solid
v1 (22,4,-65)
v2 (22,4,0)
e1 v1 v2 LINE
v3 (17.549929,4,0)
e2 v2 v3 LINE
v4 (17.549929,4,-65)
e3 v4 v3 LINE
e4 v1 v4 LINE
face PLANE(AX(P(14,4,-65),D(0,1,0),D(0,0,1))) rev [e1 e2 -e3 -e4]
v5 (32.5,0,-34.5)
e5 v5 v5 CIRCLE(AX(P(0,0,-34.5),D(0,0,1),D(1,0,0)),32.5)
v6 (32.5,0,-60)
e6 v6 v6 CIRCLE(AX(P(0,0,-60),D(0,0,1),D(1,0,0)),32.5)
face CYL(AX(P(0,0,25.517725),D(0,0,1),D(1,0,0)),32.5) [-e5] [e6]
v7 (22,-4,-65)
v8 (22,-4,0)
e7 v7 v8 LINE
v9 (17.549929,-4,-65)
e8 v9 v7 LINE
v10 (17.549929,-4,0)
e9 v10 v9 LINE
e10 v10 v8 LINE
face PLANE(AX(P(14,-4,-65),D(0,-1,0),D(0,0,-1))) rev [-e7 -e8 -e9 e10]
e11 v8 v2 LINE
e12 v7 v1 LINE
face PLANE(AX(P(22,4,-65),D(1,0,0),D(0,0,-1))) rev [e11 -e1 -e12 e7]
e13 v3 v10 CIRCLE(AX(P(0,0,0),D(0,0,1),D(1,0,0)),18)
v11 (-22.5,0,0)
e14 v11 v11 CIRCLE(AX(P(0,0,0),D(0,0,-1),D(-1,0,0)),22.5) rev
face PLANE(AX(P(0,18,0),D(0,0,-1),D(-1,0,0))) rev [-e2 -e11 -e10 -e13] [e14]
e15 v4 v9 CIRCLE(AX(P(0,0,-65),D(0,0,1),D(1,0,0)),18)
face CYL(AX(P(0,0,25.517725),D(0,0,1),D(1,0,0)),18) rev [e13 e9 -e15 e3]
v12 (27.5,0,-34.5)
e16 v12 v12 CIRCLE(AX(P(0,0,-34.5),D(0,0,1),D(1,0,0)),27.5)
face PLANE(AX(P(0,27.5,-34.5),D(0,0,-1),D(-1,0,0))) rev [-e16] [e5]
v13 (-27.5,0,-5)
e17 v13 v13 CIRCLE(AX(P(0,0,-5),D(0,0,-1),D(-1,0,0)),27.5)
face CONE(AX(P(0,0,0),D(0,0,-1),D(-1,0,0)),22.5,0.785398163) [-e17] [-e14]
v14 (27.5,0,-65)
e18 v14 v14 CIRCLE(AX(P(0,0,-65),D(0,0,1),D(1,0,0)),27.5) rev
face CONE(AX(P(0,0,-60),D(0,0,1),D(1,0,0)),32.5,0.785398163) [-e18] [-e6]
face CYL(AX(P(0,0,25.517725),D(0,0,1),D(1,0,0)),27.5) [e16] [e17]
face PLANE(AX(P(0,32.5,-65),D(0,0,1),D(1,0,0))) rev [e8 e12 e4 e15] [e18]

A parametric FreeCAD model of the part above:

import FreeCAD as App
import Part
import Sketcher

V = App.Vector
Q = App.Units.Quantity


def edges_at(feature, points):
    """Names of the edges that pass closest to the given points."""
    edges = feature.Shape.Edges
    near = lambda p: min(range(len(edges)), key=lambda i: edges[i].distToShape(Part.Vertex(*p))[0])
    return sorted({f"Edge{near(p) + 1}" for p in points})

doc = App.newDocument("Part")
body = doc.addObject("PartDesign::Body", "Body")

# Sketch on YZ plane
sketch1 = doc.addObject("Sketcher::SketchObject", "Sketch")
body.addObject(sketch1)
sketch1.AttachmentSupport = (doc.YZ_Plane, [""])
sketch1.MapMode = "FlatFace"
sketch1.addGeometry(Part.LineSegment(V(27.5, 0, 0), V(18, 0, 0)), False)
sketch1.addGeometry(Part.LineSegment(V(18, 0, 0), V(18, -65, 0)), False)
sketch1.addGeometry(Part.LineSegment(V(18, -65, 0), V(32.5, -65, 0)), False)
sketch1.addGeometry(Part.LineSegment(V(32.5, -65, 0), V(32.5, -34.5, 0)), False)
sketch1.addGeometry(Part.LineSegment(V(32.5, -34.5, 0), V(27.5, -34.5, 0)), False)
sketch1.addGeometry(Part.LineSegment(V(27.5, -34.5, 0), V(27.5, 0, 0)), False)
sketch1.addConstraint(Sketcher.Constraint("Coincident", 0, 2, 1, 1))
sketch1.addConstraint(Sketcher.Constraint("Coincident", 1, 2, 2, 1))
sketch1.addConstraint(Sketcher.Constraint("Coincident", 2, 2, 3, 1))
sketch1.addConstraint(Sketcher.Constraint("Coincident", 3, 2, 4, 1))
sketch1.addConstraint(Sketcher.Constraint("Coincident", 4, 2, 5, 1))
sketch1.addConstraint(Sketcher.Constraint("Coincident", 5, 2, 0, 1))
sketch1.addConstraint(Sketcher.Constraint("Horizontal", 0))
sketch1.addConstraint(Sketcher.Constraint("Vertical", 1))
sketch1.addConstraint(Sketcher.Constraint("Horizontal", 2))
sketch1.addConstraint(Sketcher.Constraint("Vertical", 3))
sketch1.addConstraint(Sketcher.Constraint("Horizontal", 4))
sketch1.addConstraint(Sketcher.Constraint("Vertical", 5))
sketch1.addConstraint(Sketcher.Constraint("PointOnObject", 0, 2, -1))
sketch1.addConstraint(Sketcher.Constraint("DistanceX", 4, 2, 4, 1, Q("5 mm")))
sketch1.addConstraint(Sketcher.Constraint("DistanceY", 1, 2, 1, 1, Q("65 mm")))
sketch1.addConstraint(Sketcher.Constraint("DistanceX", 0, 2, 0, 1, Q("9.5 mm")))
sketch1.addConstraint(Sketcher.Constraint("DistanceY", 3, 1, 3, 2, Q("30.5 mm")))
sketch1.addConstraint(Sketcher.Constraint("DistanceX", -1, 1, 0, 2, Q("18 mm")))
revolution = doc.addObject("PartDesign::Revolution", "Revolution")
body.addObject(revolution)
revolution.Profile = sketch1
revolution.ReferenceAxis = (sketch1, ["V_Axis"])
revolution.Angle = 360
doc.recompute()

chamfer = doc.addObject("PartDesign::Chamfer", "Chamfer")
body.addObject(chamfer)
chamfer.Base = (revolution, edges_at(revolution, [(0, -27.5, 0)]))
chamfer.Size = 5
doc.recompute()

chamfer2 = doc.addObject("PartDesign::Chamfer", "Chamfer001")
body.addObject(chamfer2)
chamfer2.Base = (chamfer, edges_at(chamfer, [(0, -32.5, -65)]))
chamfer2.Size = 5

# Sketch on XY plane
sketch2 = doc.addObject("Sketcher::SketchObject", "Sketch001")
body.addObject(sketch2)
sketch2.AttachmentSupport = (doc.XY_Plane, [""])
sketch2.MapMode = "FlatFace"
sketch2.addGeometry(Part.LineSegment(V(14, 4, 0), V(14, -4, 0)), False)
sketch2.addGeometry(Part.LineSegment(V(14, -4, 0), V(22, -4, 0)), False)
sketch2.addGeometry(Part.LineSegment(V(22, -4, 0), V(22, 4, 0)), False)
sketch2.addGeometry(Part.LineSegment(V(22, 4, 0), V(14, 4, 0)), False)
sketch2.addConstraint(Sketcher.Constraint("Coincident", 0, 2, 1, 1))
sketch2.addConstraint(Sketcher.Constraint("Coincident", 1, 2, 2, 1))
sketch2.addConstraint(Sketcher.Constraint("Coincident", 2, 2, 3, 1))
sketch2.addConstraint(Sketcher.Constraint("Coincident", 3, 2, 0, 1))
sketch2.addConstraint(Sketcher.Constraint("Vertical", 0))
sketch2.addConstraint(Sketcher.Constraint("Horizontal", 1))
sketch2.addConstraint(Sketcher.Constraint("Vertical", 2))
sketch2.addConstraint(Sketcher.Constraint("Horizontal", 3))
sketch2.addConstraint(Sketcher.Constraint("Equal", 3, 0))
sketch2.addConstraint(Sketcher.Constraint("DistanceX", 1, 1, 1, 2, Q("8 mm")))
sketch2.addConstraint(Sketcher.Constraint("DistanceX", -1, 1, 0, 2, Q("14 mm")))
sketch2.addConstraint(Sketcher.Constraint("DistanceY", 0, 2, -1, 1, Q("4 mm")))
pocket1 = doc.addObject("PartDesign::Pocket", "Pocket")
body.addObject(pocket1)
pocket1.Profile = sketch2
pocket1.Type = "ThroughAll"

doc.recompute()
